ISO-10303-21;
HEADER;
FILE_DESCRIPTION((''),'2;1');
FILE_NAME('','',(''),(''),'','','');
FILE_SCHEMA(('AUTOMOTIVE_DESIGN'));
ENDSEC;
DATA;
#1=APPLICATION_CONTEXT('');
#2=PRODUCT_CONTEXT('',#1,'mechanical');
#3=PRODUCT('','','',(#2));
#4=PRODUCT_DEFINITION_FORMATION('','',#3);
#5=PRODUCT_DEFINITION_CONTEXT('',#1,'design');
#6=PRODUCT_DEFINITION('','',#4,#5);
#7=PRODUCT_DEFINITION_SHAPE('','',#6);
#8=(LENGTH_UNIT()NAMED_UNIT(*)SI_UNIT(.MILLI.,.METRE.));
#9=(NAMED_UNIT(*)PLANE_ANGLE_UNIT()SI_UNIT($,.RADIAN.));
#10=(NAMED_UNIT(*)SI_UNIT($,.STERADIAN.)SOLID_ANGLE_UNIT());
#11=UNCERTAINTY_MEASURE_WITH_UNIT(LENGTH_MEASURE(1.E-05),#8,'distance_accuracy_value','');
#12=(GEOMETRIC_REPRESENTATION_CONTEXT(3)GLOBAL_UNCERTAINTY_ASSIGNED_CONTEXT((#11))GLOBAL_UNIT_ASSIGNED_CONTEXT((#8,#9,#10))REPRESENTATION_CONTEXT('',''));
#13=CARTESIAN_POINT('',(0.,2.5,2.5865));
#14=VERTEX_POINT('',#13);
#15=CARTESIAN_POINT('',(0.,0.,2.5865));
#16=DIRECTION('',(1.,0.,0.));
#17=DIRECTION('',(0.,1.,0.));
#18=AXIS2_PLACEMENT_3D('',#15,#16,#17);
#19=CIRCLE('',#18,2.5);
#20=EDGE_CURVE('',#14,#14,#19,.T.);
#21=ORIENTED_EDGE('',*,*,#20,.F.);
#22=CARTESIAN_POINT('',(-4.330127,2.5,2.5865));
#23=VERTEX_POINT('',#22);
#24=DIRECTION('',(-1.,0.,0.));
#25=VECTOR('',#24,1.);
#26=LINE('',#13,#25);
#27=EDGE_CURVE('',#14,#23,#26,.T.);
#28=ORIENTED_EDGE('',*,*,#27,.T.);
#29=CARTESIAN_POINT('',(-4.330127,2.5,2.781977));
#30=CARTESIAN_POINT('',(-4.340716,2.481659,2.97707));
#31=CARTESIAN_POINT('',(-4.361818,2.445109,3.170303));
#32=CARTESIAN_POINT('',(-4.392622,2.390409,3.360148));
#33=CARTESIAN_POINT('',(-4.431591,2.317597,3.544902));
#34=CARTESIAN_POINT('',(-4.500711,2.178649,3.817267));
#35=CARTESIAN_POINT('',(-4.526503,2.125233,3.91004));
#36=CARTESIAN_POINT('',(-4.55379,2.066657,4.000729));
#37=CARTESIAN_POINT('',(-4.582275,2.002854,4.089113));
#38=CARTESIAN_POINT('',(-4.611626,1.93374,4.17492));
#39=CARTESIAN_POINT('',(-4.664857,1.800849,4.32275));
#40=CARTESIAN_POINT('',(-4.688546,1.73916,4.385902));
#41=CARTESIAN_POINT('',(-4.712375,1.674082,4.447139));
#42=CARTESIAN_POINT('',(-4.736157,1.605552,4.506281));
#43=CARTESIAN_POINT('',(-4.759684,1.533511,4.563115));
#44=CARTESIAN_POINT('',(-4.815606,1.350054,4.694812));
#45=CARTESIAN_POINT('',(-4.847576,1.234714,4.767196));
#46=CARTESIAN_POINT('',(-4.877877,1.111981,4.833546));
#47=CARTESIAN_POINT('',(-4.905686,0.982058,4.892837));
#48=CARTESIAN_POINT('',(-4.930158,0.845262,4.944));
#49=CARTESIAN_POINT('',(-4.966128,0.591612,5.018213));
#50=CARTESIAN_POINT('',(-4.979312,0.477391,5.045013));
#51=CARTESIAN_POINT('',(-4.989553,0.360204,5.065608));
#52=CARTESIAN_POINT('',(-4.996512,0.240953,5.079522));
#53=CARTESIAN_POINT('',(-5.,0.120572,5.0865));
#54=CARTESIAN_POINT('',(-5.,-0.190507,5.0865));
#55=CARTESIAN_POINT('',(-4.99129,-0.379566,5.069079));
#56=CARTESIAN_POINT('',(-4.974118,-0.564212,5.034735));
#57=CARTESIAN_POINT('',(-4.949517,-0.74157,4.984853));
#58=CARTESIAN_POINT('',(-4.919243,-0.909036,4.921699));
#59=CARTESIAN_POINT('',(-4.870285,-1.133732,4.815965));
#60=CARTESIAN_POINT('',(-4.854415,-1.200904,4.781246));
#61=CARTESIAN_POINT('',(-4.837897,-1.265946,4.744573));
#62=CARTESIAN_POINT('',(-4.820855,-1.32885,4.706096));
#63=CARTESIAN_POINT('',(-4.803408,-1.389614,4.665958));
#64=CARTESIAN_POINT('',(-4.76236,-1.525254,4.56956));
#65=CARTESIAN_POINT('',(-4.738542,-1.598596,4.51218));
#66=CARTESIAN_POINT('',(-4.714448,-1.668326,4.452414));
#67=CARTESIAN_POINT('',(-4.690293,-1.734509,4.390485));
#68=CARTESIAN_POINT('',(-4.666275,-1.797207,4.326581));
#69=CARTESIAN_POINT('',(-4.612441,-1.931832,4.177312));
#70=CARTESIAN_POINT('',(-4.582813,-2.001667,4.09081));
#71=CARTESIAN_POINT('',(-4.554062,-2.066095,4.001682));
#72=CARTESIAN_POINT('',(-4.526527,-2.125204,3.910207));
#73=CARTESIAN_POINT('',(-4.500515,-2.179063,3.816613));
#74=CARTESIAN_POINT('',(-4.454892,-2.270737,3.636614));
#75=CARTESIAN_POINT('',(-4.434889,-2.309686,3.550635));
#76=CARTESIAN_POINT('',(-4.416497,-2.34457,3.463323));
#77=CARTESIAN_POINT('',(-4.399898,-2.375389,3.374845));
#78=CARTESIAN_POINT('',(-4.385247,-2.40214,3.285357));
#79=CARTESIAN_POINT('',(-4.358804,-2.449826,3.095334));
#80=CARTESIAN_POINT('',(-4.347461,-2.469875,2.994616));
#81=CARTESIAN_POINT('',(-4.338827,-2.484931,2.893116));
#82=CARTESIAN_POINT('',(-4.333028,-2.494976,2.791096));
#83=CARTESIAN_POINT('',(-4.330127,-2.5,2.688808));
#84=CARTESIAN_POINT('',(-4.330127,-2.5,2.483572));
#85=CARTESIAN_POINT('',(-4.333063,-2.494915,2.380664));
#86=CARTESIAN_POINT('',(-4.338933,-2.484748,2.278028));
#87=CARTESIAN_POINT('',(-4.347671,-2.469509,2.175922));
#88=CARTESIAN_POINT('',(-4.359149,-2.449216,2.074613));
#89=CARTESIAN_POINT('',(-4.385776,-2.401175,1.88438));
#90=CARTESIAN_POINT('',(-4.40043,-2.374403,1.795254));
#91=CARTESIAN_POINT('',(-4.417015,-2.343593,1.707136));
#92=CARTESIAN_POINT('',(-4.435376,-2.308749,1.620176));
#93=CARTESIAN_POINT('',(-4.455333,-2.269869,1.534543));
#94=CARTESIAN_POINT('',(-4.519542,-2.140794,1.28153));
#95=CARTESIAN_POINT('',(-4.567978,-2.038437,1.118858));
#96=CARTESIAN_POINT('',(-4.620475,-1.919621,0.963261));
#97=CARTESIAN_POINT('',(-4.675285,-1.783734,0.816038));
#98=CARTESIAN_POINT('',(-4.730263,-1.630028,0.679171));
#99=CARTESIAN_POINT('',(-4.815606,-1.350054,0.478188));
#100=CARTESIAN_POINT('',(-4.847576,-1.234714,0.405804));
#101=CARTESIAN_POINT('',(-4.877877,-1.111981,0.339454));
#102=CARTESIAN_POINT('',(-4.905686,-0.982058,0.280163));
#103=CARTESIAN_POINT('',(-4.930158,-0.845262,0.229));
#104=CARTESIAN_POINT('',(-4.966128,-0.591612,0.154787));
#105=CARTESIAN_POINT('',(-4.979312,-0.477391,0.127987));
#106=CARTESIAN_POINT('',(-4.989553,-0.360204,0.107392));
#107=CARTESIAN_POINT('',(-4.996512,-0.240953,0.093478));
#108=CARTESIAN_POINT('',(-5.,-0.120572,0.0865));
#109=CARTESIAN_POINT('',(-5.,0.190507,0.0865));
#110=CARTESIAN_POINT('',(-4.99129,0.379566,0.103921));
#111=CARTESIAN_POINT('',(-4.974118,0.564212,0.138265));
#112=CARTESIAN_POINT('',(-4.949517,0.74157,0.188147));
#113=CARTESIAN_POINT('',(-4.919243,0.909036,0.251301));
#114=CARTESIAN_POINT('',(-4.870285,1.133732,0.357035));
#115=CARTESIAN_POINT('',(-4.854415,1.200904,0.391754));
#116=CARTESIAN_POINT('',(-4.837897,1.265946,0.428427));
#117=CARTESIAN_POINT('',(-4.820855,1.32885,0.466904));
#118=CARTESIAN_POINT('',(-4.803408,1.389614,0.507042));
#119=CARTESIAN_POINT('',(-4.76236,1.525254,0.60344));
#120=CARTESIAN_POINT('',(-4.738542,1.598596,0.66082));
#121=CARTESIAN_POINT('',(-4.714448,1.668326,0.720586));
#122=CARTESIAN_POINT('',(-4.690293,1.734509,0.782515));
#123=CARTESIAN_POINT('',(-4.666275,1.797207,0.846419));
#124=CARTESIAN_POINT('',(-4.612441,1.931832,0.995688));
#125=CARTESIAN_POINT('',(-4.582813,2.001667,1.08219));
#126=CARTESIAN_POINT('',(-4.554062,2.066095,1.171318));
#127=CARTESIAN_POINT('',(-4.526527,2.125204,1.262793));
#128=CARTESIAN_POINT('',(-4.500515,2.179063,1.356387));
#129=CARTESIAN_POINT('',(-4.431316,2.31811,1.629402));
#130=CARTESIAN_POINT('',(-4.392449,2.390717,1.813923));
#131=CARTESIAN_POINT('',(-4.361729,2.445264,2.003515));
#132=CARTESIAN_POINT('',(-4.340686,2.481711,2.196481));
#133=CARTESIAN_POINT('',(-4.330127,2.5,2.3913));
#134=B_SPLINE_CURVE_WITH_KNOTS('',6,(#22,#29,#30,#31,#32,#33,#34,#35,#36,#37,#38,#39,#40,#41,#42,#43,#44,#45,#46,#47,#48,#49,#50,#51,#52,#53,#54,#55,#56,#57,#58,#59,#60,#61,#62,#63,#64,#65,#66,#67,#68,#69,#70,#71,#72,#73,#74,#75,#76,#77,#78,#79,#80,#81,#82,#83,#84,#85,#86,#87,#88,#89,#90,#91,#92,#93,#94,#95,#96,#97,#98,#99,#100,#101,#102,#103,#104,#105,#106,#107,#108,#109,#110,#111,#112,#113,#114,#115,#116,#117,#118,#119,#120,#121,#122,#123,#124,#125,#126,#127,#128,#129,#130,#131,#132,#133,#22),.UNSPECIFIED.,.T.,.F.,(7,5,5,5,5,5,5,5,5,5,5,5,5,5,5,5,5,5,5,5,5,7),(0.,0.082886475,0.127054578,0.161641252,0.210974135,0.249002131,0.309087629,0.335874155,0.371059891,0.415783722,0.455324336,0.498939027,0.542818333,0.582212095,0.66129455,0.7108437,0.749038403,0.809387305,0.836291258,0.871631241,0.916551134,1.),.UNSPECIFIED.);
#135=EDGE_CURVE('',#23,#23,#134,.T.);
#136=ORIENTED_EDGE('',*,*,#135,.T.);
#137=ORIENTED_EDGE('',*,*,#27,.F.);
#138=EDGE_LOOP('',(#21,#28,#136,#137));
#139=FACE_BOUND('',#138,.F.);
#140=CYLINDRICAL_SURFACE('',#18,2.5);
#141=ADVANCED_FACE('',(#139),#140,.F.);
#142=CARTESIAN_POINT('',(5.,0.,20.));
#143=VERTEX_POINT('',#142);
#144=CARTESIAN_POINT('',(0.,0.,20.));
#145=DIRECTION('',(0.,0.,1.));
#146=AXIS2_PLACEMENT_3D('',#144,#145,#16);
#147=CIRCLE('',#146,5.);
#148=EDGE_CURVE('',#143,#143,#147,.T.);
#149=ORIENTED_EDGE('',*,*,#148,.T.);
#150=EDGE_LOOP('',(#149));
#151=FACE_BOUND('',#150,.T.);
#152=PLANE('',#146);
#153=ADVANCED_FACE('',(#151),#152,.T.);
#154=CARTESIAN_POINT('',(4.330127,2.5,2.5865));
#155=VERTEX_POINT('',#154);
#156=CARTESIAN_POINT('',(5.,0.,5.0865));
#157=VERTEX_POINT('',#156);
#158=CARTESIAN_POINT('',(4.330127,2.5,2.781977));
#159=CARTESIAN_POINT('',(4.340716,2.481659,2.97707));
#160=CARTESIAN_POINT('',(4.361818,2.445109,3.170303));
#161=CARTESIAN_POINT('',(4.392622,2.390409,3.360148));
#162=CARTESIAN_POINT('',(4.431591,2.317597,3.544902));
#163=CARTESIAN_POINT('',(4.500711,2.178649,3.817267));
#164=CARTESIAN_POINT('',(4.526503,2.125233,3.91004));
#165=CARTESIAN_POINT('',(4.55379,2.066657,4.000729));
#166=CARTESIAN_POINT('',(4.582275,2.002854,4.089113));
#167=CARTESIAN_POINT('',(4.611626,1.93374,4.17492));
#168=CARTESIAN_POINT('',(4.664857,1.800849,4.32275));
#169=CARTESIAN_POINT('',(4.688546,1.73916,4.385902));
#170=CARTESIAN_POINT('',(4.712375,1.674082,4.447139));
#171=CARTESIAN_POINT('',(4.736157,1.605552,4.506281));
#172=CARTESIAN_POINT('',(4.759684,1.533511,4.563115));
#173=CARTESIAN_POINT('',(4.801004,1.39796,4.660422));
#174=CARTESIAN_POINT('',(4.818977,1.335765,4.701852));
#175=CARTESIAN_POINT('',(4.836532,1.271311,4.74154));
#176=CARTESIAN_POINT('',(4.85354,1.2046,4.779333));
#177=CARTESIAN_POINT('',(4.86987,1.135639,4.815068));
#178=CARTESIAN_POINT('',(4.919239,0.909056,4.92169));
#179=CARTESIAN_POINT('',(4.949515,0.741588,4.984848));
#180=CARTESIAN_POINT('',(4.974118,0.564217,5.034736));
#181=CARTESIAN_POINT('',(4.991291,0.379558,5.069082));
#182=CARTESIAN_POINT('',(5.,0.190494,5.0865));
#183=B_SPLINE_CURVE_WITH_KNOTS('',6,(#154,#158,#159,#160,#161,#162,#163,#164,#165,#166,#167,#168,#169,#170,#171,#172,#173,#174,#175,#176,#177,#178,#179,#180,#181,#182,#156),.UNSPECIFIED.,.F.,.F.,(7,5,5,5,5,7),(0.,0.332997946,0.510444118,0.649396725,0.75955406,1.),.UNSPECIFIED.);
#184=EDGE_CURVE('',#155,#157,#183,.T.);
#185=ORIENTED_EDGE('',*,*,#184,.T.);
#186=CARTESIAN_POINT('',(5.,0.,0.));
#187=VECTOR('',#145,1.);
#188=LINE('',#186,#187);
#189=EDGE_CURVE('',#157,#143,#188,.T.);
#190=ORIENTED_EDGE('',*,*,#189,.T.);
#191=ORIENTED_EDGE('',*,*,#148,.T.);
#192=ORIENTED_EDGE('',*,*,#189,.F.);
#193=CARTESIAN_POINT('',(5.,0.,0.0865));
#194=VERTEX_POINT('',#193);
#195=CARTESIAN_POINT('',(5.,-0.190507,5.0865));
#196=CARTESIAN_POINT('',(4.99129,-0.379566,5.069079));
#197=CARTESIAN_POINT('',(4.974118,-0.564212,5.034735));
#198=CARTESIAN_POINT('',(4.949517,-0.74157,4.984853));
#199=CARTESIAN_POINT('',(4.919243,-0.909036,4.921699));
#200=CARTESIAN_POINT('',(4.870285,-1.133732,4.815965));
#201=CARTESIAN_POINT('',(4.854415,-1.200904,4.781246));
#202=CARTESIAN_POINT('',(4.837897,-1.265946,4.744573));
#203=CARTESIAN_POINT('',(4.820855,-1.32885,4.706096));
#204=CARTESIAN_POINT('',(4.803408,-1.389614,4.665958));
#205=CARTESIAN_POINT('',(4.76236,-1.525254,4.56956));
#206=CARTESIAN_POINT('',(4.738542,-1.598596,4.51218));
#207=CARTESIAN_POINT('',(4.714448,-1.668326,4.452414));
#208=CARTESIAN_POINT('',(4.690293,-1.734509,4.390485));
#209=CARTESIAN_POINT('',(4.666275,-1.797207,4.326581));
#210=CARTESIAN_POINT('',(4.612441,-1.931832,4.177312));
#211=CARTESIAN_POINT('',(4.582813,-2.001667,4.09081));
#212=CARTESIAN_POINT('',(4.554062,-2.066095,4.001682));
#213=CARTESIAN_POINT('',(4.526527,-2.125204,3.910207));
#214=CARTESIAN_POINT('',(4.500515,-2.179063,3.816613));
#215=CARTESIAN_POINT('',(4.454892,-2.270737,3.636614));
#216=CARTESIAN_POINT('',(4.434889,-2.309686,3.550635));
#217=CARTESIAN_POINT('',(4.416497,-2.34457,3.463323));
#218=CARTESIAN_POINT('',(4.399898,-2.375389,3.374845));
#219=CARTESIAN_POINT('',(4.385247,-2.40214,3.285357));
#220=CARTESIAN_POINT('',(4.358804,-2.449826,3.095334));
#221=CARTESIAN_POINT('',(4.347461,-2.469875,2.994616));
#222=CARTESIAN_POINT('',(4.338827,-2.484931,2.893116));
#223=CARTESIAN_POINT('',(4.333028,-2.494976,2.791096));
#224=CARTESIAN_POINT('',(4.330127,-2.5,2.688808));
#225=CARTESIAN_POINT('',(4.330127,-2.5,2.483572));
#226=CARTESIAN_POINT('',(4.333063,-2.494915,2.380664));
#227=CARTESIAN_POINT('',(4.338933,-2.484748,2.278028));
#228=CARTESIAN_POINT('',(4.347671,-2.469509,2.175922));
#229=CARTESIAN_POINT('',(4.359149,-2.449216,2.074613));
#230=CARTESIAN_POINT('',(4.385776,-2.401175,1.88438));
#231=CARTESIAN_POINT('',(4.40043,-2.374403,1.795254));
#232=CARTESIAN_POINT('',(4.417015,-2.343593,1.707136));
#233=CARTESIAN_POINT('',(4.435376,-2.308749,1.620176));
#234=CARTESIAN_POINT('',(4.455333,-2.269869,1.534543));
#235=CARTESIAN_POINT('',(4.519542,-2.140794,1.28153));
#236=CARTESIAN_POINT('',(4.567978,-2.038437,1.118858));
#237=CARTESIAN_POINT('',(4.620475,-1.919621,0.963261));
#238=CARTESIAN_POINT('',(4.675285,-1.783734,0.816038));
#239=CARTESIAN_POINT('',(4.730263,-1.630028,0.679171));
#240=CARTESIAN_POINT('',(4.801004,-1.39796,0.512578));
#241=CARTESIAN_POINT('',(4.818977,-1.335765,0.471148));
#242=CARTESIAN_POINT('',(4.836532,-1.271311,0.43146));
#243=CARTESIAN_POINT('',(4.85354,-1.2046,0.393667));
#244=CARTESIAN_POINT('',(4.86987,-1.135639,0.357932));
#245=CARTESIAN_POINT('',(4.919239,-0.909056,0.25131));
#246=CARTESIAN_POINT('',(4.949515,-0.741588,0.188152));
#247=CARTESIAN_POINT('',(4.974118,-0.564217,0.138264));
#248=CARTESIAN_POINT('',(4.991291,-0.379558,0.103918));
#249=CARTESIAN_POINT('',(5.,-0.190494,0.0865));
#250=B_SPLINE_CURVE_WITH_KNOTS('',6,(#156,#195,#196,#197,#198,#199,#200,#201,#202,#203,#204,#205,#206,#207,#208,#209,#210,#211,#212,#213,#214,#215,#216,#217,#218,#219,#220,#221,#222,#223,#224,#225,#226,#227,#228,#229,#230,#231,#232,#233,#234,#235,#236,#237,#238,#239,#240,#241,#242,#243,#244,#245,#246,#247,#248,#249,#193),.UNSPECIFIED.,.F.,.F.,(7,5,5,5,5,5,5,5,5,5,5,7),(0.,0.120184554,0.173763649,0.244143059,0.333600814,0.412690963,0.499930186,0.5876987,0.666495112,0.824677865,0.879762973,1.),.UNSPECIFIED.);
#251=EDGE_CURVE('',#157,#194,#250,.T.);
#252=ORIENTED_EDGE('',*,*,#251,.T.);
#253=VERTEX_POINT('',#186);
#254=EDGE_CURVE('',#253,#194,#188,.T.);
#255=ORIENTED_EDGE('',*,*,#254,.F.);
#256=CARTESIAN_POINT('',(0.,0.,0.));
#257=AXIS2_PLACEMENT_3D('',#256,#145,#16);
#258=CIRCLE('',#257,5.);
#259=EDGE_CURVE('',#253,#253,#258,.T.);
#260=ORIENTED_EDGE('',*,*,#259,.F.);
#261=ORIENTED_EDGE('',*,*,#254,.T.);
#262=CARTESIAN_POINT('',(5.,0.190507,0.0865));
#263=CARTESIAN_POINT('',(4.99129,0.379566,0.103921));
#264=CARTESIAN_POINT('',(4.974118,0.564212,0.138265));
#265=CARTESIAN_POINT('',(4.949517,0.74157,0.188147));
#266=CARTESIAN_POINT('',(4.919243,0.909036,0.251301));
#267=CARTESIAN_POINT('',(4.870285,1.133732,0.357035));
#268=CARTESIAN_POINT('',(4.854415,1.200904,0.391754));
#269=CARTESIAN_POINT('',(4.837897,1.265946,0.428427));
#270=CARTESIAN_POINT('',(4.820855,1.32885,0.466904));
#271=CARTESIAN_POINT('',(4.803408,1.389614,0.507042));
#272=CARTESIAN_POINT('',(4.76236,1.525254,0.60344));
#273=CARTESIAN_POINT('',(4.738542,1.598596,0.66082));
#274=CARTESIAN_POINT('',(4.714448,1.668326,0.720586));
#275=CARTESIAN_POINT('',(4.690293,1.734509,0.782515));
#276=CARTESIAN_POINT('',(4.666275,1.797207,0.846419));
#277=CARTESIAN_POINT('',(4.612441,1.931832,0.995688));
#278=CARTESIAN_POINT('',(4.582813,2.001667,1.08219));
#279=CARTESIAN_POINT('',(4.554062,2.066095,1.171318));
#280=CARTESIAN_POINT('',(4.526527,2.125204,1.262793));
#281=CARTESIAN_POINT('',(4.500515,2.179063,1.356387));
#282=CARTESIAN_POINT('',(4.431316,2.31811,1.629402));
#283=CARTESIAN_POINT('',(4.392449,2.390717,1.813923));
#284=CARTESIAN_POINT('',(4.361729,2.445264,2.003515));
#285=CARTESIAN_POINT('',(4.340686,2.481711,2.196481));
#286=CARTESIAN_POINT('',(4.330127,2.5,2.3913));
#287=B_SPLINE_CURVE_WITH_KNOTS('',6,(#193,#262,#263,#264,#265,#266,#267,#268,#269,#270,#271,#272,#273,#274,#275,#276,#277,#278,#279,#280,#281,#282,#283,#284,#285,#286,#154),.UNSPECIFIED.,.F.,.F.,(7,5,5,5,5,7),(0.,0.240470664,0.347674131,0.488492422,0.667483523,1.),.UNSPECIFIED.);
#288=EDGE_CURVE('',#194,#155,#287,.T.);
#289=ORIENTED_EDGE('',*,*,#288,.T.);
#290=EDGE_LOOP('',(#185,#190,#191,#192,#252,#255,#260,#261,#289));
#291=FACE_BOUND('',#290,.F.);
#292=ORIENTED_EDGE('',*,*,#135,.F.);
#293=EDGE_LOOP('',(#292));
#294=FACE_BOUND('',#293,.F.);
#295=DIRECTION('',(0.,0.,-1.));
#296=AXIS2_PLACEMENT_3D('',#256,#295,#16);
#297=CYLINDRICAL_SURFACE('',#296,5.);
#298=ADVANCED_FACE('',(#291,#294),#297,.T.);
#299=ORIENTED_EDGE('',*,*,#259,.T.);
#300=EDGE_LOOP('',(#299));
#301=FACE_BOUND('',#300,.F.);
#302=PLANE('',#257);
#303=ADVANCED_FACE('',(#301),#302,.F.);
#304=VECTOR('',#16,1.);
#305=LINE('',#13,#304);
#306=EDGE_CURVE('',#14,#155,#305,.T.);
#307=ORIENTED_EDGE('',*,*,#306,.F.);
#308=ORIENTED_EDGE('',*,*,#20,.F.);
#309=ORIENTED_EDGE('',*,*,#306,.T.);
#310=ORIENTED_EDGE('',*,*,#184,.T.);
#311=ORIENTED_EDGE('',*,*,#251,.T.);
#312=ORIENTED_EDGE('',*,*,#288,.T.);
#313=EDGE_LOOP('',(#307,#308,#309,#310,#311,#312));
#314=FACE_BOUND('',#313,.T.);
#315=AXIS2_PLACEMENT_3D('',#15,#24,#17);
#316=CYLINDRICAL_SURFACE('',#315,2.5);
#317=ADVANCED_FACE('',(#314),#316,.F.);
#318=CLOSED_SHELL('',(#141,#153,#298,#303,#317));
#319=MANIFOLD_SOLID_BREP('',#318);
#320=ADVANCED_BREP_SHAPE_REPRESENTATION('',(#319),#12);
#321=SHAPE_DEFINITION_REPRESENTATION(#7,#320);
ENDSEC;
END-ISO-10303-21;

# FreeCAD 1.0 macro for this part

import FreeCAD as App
import Part
import Sketcher
Q = App.Units.Quantity

doc = App.newDocument("Part")
body = doc.addObject("PartDesign::Body", "Body")

# Sketch on XY plane
sketch1 = doc.addObject("Sketcher::SketchObject", "Sketch")
body.addObject(sketch1)
sketch1.AttachmentSupport = (doc.XY_Plane, [""])
sketch1.MapMode = "FlatFace"
sketch1.addGeometry(Part.Circle(App.Vector(0, 0, 0), App.Vector(0, 0, 1), 5), False)
sketch1.addConstraint([
    Sketcher.Constraint("Coincident", 0, 3, -1, 1),
    Sketcher.Constraint("Diameter", 0, Q("10 mm")),
])
pad1 = doc.addObject("PartDesign::Pad", "Pad")
body.addObject(pad1)
pad1.Profile = sketch1
pad1.Length = 20

# Sketch on YZ plane
sketch2 = doc.addObject("Sketcher::SketchObject", "Sketch001")
body.addObject(sketch2)
sketch2.AttachmentSupport = (doc.YZ_Plane, [""])
sketch2.MapMode = "FlatFace"
sketch2.addGeometry(Part.Circle(App.Vector(0, 2.5865, 0), App.Vector(0, 0, 1), 2.5), False)
sketch2.addConstraint([
    Sketcher.Constraint("PointOnObject", 0, 3, -2),
    Sketcher.Constraint("Diameter", 0, Q("5 mm")),
    Sketcher.Constraint("DistanceY", -1, 1, 0, 3, Q("2.5865 mm")),
])
pocket1 = doc.addObject("PartDesign::Pocket", "Pocket")
body.addObject(pocket1)
pocket1.Profile = sketch2
pocket1.Length = 15
pocket1.Midplane = True

doc.recompute()
